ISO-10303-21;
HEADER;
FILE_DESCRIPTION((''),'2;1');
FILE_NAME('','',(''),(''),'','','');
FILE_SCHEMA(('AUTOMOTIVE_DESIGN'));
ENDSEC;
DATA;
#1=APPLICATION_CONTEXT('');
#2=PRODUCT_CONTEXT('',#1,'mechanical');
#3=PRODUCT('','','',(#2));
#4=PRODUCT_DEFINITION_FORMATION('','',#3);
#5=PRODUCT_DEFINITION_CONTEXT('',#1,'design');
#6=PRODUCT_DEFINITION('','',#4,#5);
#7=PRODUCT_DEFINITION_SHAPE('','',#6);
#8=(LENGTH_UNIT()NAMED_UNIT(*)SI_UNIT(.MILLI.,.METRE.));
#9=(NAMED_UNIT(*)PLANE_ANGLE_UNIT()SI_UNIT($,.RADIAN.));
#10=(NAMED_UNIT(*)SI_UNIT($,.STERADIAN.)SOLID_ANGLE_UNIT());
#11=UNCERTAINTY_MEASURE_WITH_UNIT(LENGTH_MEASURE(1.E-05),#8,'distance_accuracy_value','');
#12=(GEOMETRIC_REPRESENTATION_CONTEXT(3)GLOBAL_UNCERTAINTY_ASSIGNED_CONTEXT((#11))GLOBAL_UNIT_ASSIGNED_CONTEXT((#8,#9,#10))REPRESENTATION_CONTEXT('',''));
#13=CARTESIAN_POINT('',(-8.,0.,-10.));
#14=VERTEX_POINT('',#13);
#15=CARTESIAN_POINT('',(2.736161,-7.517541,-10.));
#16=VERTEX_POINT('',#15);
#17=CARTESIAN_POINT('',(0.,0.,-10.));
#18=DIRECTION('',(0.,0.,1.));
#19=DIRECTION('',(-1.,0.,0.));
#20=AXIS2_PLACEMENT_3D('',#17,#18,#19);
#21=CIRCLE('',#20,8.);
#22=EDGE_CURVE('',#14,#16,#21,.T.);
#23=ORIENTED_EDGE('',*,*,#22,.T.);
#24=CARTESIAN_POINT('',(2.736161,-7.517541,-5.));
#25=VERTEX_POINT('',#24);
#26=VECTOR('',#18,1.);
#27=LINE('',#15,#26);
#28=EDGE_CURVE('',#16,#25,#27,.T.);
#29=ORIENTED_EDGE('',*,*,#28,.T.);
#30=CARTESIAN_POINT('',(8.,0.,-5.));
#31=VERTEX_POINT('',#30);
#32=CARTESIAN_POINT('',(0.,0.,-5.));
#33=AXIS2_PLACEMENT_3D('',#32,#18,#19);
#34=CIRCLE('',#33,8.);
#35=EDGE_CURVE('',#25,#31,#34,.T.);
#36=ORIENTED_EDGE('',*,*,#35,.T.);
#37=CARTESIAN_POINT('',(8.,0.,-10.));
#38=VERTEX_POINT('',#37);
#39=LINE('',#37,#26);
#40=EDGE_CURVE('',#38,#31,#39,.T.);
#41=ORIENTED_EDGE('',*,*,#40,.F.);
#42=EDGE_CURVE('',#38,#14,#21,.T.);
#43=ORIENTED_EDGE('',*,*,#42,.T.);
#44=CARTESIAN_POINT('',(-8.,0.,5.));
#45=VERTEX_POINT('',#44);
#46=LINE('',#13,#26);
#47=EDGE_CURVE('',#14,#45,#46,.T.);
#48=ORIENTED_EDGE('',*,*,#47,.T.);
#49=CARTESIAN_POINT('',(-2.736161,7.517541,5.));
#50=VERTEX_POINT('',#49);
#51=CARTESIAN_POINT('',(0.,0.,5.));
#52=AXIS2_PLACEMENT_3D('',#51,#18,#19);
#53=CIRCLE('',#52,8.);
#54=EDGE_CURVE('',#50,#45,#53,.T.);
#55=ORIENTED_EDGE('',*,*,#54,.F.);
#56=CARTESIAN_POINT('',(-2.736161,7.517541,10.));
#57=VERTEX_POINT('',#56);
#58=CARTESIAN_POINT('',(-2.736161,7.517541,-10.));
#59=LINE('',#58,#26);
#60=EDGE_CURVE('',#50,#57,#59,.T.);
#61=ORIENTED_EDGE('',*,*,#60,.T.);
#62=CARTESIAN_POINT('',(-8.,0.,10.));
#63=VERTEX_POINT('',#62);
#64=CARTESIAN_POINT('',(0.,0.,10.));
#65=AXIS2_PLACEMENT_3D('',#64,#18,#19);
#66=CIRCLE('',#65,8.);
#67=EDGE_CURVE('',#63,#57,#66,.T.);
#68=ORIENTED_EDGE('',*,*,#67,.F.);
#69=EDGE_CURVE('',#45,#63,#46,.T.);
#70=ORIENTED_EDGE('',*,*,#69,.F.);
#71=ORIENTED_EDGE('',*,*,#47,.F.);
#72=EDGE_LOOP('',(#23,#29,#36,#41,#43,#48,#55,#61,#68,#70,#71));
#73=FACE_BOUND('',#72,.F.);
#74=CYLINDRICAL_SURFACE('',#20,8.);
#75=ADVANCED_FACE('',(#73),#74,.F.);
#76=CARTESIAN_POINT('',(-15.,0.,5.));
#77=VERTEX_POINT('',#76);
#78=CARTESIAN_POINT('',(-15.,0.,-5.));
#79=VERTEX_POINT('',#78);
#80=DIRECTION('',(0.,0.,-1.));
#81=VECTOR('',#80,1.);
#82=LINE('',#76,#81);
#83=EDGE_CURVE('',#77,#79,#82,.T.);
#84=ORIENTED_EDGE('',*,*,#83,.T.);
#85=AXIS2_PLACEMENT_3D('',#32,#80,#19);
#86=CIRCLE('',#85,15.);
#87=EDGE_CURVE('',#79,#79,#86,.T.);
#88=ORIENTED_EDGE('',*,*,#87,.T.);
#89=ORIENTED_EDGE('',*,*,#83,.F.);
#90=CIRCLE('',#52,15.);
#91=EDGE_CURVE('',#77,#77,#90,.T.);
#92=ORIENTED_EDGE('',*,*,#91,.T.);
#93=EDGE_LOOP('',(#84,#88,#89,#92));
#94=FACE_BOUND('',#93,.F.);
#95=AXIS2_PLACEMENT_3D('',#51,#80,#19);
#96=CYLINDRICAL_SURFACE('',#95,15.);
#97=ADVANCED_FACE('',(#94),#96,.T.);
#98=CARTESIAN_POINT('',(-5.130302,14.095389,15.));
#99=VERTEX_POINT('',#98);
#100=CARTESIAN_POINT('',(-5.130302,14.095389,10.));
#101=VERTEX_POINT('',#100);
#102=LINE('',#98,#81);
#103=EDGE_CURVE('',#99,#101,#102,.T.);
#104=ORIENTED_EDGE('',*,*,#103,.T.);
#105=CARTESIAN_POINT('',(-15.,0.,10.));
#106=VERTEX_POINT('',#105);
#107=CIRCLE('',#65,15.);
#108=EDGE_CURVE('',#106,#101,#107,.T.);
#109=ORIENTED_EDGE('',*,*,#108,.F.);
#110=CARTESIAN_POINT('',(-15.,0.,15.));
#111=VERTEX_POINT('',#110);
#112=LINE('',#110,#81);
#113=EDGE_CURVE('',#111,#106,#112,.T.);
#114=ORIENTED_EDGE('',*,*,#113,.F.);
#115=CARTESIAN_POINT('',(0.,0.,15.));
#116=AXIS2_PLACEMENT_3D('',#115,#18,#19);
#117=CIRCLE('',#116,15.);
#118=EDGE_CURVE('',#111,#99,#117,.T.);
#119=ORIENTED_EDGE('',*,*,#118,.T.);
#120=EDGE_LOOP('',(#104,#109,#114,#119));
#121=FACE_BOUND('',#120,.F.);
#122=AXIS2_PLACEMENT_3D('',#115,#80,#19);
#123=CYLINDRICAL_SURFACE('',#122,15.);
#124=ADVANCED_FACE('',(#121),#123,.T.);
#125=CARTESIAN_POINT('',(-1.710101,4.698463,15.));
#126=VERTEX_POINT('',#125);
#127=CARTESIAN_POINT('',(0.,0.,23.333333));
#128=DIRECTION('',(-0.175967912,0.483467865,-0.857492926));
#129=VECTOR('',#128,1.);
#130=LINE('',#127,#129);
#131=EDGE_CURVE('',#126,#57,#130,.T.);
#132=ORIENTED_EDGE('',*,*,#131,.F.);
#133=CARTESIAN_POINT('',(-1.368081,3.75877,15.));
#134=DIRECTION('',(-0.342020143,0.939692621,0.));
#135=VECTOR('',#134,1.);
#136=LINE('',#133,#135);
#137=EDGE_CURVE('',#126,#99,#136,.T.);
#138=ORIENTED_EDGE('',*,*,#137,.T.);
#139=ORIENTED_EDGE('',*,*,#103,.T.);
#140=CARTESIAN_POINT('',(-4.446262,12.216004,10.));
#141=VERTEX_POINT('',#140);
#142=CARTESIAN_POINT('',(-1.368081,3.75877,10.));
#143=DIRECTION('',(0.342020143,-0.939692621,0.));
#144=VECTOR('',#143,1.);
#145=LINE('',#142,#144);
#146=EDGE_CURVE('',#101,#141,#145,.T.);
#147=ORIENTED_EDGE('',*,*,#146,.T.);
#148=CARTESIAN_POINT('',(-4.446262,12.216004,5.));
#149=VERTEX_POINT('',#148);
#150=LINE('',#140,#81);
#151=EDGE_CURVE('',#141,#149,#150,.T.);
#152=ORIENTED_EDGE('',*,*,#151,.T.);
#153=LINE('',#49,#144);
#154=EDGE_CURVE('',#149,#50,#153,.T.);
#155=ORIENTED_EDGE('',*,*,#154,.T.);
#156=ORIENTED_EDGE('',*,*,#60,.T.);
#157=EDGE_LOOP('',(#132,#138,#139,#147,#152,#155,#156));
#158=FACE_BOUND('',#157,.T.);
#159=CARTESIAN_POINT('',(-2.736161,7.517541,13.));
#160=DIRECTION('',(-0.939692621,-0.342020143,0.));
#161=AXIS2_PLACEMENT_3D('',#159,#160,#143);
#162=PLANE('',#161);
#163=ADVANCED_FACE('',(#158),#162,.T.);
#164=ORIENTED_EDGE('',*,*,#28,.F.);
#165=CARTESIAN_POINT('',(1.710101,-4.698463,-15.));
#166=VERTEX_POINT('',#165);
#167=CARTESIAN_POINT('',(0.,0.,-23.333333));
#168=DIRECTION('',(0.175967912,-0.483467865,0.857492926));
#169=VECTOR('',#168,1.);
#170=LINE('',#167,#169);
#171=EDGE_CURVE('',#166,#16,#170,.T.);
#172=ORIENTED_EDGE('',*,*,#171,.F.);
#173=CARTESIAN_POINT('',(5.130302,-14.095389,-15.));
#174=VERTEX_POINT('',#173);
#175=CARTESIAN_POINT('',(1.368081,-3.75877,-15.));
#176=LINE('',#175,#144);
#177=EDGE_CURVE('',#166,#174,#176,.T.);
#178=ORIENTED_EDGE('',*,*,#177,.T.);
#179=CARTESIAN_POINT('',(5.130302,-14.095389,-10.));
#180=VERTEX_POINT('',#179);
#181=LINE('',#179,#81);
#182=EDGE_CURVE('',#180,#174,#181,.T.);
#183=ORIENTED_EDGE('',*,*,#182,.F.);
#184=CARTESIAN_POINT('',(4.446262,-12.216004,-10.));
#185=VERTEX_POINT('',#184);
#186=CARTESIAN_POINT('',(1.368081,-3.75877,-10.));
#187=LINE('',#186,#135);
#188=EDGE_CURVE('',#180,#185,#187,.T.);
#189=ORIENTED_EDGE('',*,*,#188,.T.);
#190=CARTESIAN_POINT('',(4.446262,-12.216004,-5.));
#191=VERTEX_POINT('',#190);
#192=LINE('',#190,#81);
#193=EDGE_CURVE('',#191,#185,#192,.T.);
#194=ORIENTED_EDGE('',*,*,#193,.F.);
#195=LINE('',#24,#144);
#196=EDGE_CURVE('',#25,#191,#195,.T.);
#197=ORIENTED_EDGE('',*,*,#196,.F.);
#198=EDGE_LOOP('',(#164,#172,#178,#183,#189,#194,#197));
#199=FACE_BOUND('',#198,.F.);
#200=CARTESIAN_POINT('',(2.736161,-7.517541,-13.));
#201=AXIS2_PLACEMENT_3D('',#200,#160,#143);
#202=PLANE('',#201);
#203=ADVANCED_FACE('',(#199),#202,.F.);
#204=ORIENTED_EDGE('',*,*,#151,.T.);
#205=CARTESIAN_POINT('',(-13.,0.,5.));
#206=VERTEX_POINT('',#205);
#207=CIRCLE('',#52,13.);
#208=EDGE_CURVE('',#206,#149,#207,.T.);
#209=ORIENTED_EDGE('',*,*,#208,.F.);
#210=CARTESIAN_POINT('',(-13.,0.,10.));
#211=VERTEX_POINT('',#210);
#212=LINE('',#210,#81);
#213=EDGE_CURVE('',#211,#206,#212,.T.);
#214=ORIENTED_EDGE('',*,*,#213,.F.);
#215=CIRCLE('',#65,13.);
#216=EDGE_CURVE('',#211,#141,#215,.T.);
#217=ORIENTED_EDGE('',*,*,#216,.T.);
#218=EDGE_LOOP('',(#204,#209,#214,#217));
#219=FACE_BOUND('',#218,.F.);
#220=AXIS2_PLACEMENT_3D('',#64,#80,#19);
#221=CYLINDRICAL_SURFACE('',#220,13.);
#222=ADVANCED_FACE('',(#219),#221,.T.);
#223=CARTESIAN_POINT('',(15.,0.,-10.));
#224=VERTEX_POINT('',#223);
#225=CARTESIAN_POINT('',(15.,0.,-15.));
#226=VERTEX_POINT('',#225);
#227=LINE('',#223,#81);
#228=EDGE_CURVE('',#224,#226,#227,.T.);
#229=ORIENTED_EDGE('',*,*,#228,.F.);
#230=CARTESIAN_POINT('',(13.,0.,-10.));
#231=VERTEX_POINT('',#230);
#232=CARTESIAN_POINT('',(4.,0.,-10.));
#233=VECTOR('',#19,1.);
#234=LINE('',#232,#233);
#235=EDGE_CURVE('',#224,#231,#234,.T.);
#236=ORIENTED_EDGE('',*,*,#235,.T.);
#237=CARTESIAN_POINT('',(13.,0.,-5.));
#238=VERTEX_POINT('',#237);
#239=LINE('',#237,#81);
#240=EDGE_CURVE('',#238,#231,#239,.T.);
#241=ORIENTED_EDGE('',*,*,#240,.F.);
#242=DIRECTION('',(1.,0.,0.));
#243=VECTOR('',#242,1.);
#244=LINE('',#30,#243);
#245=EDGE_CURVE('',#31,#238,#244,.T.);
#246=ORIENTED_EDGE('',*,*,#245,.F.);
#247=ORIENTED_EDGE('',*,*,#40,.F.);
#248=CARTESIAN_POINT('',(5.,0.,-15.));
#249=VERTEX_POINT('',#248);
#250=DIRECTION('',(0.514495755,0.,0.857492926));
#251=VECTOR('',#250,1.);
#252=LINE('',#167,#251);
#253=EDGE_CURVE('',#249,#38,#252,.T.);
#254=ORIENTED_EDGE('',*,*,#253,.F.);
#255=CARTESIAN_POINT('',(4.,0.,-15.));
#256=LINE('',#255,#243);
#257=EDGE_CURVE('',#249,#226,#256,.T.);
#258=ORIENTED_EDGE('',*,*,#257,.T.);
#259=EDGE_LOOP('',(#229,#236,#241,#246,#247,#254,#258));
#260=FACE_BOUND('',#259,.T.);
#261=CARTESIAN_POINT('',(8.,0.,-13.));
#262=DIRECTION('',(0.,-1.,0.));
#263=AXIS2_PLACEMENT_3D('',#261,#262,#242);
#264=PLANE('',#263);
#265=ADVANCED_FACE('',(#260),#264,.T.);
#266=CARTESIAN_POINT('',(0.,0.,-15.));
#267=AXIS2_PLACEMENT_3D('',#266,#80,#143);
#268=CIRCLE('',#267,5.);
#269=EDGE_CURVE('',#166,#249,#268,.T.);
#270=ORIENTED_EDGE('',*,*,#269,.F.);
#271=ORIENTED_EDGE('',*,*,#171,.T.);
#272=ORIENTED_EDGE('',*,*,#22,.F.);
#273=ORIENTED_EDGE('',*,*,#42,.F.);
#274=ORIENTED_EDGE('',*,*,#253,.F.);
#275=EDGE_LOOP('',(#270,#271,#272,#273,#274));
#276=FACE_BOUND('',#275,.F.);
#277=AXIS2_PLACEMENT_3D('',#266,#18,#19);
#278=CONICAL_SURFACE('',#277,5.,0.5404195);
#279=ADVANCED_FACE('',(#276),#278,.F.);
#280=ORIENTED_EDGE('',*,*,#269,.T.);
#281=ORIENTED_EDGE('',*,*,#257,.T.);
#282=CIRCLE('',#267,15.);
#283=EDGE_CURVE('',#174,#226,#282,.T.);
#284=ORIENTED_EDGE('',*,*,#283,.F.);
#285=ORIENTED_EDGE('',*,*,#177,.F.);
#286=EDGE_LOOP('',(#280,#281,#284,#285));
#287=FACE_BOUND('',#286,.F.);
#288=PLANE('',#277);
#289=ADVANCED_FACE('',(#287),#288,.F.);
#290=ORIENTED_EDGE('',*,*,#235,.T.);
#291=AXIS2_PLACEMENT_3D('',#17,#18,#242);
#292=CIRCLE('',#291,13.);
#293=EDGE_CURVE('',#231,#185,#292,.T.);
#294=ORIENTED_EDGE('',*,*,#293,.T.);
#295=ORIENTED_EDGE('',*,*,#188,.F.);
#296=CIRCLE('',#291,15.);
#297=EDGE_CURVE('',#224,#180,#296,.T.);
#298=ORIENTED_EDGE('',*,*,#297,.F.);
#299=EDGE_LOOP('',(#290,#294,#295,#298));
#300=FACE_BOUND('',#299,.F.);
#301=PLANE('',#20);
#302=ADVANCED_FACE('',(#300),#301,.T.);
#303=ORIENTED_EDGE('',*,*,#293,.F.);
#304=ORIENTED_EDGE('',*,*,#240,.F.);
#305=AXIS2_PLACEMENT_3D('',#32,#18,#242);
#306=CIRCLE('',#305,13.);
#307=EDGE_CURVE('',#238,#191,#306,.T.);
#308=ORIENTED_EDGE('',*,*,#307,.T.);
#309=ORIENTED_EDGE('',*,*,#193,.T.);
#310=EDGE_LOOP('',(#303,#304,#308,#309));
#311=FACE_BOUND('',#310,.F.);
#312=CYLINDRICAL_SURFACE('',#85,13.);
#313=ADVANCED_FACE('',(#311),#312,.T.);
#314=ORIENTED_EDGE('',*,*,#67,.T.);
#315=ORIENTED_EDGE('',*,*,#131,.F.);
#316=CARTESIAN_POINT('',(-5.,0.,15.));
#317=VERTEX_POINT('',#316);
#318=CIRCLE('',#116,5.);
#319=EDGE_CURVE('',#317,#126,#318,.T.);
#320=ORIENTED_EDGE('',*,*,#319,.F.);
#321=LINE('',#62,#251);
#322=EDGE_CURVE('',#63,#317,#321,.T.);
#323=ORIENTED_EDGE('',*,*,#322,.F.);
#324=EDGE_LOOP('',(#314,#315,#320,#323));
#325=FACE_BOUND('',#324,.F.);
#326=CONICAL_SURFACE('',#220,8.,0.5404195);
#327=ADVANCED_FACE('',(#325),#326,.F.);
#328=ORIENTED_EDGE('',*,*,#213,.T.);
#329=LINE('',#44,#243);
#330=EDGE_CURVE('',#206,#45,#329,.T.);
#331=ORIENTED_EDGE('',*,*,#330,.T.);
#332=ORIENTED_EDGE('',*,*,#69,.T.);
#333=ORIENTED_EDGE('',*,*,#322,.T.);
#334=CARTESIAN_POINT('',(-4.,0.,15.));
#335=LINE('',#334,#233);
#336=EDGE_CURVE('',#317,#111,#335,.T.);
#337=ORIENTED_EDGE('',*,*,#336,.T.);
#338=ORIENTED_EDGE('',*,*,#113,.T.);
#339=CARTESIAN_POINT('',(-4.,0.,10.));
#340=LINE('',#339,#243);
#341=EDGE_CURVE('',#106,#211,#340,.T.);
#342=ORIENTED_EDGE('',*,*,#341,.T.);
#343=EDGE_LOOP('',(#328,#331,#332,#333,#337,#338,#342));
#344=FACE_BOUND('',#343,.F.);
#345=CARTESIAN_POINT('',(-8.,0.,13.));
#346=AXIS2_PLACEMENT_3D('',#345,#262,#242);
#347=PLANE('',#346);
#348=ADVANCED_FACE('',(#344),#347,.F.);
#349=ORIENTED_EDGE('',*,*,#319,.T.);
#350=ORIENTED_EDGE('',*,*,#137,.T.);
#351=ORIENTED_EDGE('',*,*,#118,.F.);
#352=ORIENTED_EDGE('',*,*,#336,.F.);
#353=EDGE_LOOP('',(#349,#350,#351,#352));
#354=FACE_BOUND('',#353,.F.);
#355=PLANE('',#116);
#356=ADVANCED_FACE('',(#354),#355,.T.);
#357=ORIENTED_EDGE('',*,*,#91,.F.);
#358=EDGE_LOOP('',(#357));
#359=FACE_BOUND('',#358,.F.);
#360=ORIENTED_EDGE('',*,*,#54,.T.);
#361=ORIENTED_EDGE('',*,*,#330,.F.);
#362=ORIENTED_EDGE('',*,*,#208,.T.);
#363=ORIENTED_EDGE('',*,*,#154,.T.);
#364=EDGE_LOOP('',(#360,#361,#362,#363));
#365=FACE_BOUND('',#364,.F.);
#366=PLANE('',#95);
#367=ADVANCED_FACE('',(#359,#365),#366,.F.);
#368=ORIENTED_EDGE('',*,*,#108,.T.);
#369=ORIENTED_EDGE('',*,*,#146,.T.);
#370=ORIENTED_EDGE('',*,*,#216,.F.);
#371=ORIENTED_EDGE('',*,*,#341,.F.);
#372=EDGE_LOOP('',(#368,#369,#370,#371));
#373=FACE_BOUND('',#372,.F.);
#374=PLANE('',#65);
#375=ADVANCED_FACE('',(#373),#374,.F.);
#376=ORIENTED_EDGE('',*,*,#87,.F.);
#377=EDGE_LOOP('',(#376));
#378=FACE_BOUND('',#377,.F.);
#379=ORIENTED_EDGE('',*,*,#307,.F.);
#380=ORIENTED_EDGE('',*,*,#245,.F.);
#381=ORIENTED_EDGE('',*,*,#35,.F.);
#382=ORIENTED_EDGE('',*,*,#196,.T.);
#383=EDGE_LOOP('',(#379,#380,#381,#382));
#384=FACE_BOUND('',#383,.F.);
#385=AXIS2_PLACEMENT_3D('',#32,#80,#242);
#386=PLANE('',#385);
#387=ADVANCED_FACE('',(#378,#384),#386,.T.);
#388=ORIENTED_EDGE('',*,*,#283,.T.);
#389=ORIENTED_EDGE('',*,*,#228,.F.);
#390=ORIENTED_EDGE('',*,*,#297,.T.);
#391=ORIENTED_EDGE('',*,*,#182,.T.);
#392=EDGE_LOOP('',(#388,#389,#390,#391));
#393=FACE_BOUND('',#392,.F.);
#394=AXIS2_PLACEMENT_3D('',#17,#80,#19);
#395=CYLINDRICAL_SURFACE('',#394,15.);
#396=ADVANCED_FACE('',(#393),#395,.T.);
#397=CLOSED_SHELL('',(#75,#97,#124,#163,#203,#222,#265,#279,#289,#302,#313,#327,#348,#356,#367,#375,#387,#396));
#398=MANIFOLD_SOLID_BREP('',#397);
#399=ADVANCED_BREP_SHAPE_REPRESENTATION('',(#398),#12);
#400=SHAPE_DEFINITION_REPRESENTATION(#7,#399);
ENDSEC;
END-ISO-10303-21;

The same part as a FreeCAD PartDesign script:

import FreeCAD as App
import Part
import Sketcher


def add_polygon(sketch, points):
    """Adds a closed chain of lines whose ends are joined by coincident constraints."""
    first, n = sketch.GeometryCount, len(points)
    for a, b in zip(points, points[1:] + points[:1]):
        sketch.addGeometry(Part.LineSegment(App.Vector(*a, 0), App.Vector(*b, 0)), False)
    for i in range(n):
        sketch.addConstraint(Sketcher.Constraint("Coincident", first + i, 2, first + (i + 1) % n, 1))

doc = App.newDocument("Part")
body = doc.addObject("PartDesign::Body", "Body")

sketch1 = doc.addObject("Sketcher::SketchObject", "Sketch")
body.addObject(sketch1)
sketch1.AttachmentSupport = (doc.XZ_Plane, [""])
sketch1.MapMode = "FlatFace"
add_polygon(sketch1, [(-5, 15), (-15, 15), (-15, 10), (-13, 10), (-13, 5), (-15, 5), (-15, -5), (-13, -5), (-13, -10), (-15, -10), (-15, -15), (-5, -15), (-8, -10), (-8, 10)])
sketch1.addConstraint([
    Sketcher.Constraint("Horizontal", 0),
    Sketcher.Constraint("Vertical", 1),
    Sketcher.Constraint("Horizontal", 2),
    Sketcher.Constraint("Vertical", 3),
    Sketcher.Constraint("Horizontal", 4),
    Sketcher.Constraint("Vertical", 5),
    Sketcher.Constraint("Horizontal", 6),
    Sketcher.Constraint("Vertical", 7),
    Sketcher.Constraint("Horizontal", 8),
    Sketcher.Constraint("Vertical", 9),
    Sketcher.Constraint("Horizontal", 10),
    Sketcher.Constraint("Vertical", 12),
    Sketcher.Constraint("Symmetric", 3, 2, 6, 2, -1),
    Sketcher.Constraint("Symmetric", 1, 2, 8, 2, -1),
    Sketcher.Constraint("Symmetric", 10, 2, 13, 2, -1),
    Sketcher.Constraint("Horizontal", 8, 2, 11, 2),
    Sketcher.Constraint("Horizontal", 2, 2, 12, 2),
    Sketcher.Constraint("Vertical", 1, 2, 4, 2),
    Sketcher.Constraint("Equal", 1, 3),
    Sketcher.Constraint("Equal", 10, 5),
    Sketcher.Constraint("DistanceX", 0, 2, 0, 1, 10.0),
    Sketcher.Constraint("DistanceX", 2, 1, 2, 2, 2.0),
    Sketcher.Constraint("DistanceY", 1, 2, 1, 1, 5.0),
    Sketcher.Constraint("DistanceX", 0, 2, -1, 1, 15.0),
    Sketcher.Constraint("DistanceX", 11, 2, -1, 1, 8.0),
])
revolution = doc.addObject("PartDesign::Revolution", "Revolution")
body.addObject(revolution)
revolution.Profile = sketch1
revolution.ReferenceAxis = (sketch1, ["V_Axis"])
revolution.Angle = 360

sketch2 = doc.addObject("Sketcher::SketchObject", "Sketch001")
body.addObject(sketch2)
sketch2.AttachmentSupport = (doc.XZ_Plane, [""])
sketch2.MapMode = "FlatFace"
add_polygon(sketch2, [(-16, 21), (-16, 5), (0, 5), (0, 21)])
add_polygon(sketch2, [(0, -5), (0, -21), (16, -21), (16, -5)])
sketch2.addConstraint([
    Sketcher.Constraint("Vertical", 0),
    Sketcher.Constraint("Horizontal", 1),
    Sketcher.Constraint("Vertical", 2),
    Sketcher.Constraint("Horizontal", 3),
    Sketcher.Constraint("Vertical", 4),
    Sketcher.Constraint("Horizontal", 5),
    Sketcher.Constraint("Vertical", 6),
    Sketcher.Constraint("Horizontal", 7),
    Sketcher.Constraint("Symmetric", 2, 2, 4, 2, -1, 1),
    Sketcher.Constraint("Symmetric", 0, 2, 6, 2, -1, 1),
    Sketcher.Constraint("PointOnObject", 1, 2, -2),
    Sketcher.Constraint("Equal", 7, 0),
    Sketcher.Constraint("DistanceX", 1, 1, 1, 2, 16.0),
    Sketcher.Constraint("DistanceY", -1, 1, 0, 2, 5.0),
])
groove = doc.addObject("PartDesign::Groove", "Groove")
body.addObject(groove)
groove.Profile = sketch2
groove.ReferenceAxis = (sketch2, ["V_Axis"])
groove.Angle = 70
groove.Reversed = True

doc.recompute()
